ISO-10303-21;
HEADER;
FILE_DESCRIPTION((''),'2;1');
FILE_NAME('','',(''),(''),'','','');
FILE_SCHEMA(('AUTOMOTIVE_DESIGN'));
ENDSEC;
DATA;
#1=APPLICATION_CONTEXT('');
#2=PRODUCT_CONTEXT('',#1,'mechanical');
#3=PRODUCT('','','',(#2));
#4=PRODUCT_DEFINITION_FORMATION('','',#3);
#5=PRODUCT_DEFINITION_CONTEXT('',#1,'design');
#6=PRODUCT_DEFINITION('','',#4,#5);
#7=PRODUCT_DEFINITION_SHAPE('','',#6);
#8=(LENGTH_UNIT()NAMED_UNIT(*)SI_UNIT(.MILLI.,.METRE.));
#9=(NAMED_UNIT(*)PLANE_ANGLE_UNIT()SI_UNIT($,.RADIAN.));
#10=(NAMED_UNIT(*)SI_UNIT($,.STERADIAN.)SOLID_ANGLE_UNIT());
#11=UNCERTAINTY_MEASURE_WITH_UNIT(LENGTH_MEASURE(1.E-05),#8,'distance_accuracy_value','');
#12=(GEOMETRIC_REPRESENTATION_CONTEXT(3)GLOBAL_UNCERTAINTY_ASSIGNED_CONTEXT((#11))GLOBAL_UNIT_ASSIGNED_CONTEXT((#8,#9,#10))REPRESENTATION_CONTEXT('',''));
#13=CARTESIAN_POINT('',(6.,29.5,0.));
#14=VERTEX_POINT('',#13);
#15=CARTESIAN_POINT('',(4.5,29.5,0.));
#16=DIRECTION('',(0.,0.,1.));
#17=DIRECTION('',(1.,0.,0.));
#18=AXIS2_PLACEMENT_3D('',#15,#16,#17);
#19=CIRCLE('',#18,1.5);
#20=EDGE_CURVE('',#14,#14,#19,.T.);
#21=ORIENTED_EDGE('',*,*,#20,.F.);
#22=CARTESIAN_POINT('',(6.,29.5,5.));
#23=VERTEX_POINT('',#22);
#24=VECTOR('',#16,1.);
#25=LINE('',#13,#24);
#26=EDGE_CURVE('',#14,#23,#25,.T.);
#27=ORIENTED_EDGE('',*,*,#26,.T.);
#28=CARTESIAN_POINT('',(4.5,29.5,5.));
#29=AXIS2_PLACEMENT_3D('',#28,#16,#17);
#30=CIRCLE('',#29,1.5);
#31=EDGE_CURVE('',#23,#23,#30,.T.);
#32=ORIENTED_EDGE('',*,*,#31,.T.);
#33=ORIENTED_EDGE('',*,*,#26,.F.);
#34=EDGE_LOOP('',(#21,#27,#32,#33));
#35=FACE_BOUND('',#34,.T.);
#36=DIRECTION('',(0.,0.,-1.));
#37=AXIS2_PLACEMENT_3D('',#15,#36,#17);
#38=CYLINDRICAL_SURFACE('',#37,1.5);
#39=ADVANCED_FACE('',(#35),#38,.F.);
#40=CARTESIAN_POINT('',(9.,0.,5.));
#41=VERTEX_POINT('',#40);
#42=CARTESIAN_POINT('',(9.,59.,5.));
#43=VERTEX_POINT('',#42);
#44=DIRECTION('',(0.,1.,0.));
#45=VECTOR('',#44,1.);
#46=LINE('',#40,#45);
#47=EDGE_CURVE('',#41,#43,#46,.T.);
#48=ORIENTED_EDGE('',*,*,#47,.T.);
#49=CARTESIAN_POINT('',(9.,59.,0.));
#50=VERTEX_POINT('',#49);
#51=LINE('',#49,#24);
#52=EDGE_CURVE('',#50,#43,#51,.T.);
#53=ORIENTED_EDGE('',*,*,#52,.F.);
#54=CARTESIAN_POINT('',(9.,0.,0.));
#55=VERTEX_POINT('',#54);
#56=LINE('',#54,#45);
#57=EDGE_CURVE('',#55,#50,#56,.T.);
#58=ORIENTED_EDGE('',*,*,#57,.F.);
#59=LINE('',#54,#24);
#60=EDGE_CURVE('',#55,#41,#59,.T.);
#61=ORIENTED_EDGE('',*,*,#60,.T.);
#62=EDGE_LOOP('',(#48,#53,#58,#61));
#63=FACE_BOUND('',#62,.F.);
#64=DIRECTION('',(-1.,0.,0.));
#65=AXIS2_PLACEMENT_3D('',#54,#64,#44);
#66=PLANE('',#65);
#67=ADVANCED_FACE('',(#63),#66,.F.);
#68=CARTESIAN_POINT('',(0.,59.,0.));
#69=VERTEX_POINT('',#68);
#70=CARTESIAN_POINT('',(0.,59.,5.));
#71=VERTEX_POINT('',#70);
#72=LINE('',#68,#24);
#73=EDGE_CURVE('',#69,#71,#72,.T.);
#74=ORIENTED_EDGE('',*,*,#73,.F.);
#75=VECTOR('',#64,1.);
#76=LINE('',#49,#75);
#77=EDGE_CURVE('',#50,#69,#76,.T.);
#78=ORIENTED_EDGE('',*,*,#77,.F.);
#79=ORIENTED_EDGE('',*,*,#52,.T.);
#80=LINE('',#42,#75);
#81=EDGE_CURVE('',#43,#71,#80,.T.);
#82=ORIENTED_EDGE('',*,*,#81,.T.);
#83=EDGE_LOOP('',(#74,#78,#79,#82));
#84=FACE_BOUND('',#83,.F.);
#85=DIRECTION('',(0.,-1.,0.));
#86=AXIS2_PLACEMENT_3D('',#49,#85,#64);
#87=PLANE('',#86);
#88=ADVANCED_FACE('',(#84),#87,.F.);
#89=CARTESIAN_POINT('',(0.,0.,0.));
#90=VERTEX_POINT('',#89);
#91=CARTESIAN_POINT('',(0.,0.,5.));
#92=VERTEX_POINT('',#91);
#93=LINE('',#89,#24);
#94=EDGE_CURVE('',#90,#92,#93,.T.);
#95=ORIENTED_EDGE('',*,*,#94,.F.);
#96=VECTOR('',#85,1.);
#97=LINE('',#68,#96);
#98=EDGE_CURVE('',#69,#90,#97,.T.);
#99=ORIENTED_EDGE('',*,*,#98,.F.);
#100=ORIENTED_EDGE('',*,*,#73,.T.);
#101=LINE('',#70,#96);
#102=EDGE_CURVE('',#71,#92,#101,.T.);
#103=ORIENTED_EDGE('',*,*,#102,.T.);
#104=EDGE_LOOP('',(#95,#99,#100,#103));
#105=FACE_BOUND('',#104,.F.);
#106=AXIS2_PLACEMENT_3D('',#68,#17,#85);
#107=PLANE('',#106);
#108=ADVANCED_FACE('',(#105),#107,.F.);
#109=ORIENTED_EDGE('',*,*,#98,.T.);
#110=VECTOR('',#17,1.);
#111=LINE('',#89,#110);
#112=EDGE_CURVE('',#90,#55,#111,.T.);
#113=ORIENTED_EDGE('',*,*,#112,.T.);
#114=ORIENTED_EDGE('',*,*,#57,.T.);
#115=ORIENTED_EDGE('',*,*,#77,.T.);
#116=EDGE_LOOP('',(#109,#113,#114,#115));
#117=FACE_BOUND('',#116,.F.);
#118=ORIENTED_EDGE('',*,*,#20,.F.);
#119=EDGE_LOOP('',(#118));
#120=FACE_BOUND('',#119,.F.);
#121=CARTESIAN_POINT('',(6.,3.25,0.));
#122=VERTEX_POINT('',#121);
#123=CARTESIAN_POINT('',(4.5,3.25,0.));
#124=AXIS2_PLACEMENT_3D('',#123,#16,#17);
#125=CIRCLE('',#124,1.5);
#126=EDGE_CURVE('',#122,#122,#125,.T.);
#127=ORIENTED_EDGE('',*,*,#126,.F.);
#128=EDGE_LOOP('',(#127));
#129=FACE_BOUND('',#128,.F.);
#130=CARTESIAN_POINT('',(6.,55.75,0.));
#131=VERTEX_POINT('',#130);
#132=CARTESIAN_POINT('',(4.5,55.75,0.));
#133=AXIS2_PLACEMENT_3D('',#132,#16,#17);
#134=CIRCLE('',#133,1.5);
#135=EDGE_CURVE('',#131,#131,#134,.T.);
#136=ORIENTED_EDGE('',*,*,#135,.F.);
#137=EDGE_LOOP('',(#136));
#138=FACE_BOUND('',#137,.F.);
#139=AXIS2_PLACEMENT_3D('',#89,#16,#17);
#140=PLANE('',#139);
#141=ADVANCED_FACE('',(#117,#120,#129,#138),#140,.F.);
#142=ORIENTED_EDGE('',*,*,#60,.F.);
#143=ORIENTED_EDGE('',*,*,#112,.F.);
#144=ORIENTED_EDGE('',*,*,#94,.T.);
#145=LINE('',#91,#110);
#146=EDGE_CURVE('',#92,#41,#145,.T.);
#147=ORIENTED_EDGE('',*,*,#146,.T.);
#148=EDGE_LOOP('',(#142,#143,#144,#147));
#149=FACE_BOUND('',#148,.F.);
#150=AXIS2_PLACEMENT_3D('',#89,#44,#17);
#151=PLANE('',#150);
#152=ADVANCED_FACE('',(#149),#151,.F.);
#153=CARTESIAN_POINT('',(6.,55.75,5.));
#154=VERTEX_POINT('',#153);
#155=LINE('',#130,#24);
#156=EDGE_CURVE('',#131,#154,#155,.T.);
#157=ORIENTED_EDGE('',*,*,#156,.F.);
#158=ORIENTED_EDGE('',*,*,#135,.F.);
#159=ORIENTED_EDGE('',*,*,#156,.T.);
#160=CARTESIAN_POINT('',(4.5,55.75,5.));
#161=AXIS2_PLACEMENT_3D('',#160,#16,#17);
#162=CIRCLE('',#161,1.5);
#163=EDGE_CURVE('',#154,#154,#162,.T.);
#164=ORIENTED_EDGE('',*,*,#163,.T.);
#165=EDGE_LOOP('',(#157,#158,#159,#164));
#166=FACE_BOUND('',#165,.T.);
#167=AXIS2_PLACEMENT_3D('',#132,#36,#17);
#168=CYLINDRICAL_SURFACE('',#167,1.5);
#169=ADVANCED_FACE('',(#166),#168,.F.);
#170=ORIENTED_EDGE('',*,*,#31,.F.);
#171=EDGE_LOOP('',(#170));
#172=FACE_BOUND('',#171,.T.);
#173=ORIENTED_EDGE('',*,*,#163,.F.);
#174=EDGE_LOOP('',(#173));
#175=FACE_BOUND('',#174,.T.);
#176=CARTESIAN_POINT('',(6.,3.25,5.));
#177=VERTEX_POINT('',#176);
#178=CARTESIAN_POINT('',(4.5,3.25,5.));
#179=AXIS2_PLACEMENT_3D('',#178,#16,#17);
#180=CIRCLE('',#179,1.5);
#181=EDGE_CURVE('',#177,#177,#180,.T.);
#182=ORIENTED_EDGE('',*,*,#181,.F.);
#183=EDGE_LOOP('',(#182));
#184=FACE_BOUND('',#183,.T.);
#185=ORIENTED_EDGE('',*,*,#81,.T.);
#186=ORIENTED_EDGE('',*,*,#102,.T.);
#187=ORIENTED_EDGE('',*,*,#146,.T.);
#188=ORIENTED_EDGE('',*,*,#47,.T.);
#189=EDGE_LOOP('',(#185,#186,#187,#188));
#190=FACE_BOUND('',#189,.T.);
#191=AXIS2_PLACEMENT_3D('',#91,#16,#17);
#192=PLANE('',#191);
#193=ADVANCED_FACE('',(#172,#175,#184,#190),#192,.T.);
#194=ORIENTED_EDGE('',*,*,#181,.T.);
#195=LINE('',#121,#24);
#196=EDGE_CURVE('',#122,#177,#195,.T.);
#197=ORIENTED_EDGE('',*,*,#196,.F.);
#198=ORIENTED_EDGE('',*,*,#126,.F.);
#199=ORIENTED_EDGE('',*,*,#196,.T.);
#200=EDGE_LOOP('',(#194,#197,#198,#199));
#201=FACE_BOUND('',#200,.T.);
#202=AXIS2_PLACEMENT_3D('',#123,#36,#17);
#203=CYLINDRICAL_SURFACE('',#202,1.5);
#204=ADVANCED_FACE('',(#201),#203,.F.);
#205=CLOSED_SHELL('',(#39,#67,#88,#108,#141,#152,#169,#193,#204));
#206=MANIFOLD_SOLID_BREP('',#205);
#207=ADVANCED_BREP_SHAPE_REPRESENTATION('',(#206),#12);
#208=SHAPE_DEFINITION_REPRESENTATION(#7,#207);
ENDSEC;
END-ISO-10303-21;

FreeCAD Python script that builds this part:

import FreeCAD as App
import Part
import Sketcher

V = App.Vector
Q = App.Units.Quantity

doc = App.newDocument("Part")
body = doc.addObject("PartDesign::Body", "Body")

# Sketch on XY plane
sketch1 = body.newObject("Sketcher::SketchObject", "Sketch")
sketch1.AttachmentSupport = (doc.getObject("XY_Plane"), [""])
sketch1.MapMode = "FlatFace"
sketch1.addGeometry([
    Part.LineSegment(V(0, 59, 0), V(0, 0, 0)),  # 0
    Part.LineSegment(V(0, 0, 0), V(9, 0, 0)),  # 1
    Part.LineSegment(V(9, 0, 0), V(9, 59, 0)),  # 2
    Part.LineSegment(V(9, 59, 0), V(0, 59, 0)),  # 3
    Part.Circle(V(4.5, 3.2, 0), V(0, 0, 1), 1.5),  # 4
    Part.Circle(V(4.5, 29.5, 0), V(0, 0, 1), 1.5),  # 5
    Part.Circle(V(4.5, 55.8, 0), V(0, 0, 1), 1.5),  # 6
], False)
sketch1.addConstraint([
    Sketcher.Constraint("Coincident", 0, 2, 1, 1),
    Sketcher.Constraint("Coincident", 1, 2, 2, 1),
    Sketcher.Constraint("Coincident", 2, 2, 3, 1),
    Sketcher.Constraint("Coincident", 3, 2, 0, 1),
    Sketcher.Constraint("Vertical", 0),
    Sketcher.Constraint("Horizontal", 1),
    Sketcher.Constraint("Vertical", 2),
    Sketcher.Constraint("Horizontal", 3),
    Sketcher.Constraint("Coincident", 0, 2, -1, 1),
    Sketcher.Constraint("Equal", 4, 5),
    Sketcher.Constraint("Equal", 5, 6),
    Sketcher.Constraint("Vertical", 4, 3, 5, 3),
    Sketcher.Constraint("Vertical", 5, 3, 6, 3),
    Sketcher.Constraint("Diameter", 4, Q("3 mm")),
    Sketcher.Constraint("DistanceX", 1, 1, 1, 2, Q("9 mm")),
    Sketcher.Constraint("DistanceY", 0, 2, 0, 1, Q("59 mm")),
    Sketcher.Constraint("DistanceY", 4, 3, 6, 3, Q("52.5 mm")),
    Sketcher.Constraint("DistanceX", -1, 1, 4, 3, Q("4.5 mm")),
    Sketcher.Constraint("DistanceY", -1, 1, 5, 3, Q("29.5 mm")),
    Sketcher.Constraint("DistanceY", -1, 1, 4, 3, Q("3.25 mm")),
])
pad1 = body.newObject("PartDesign::Pad", "Pad")
pad1.Profile = sketch1
pad1.Length = 5

doc.recompute()
